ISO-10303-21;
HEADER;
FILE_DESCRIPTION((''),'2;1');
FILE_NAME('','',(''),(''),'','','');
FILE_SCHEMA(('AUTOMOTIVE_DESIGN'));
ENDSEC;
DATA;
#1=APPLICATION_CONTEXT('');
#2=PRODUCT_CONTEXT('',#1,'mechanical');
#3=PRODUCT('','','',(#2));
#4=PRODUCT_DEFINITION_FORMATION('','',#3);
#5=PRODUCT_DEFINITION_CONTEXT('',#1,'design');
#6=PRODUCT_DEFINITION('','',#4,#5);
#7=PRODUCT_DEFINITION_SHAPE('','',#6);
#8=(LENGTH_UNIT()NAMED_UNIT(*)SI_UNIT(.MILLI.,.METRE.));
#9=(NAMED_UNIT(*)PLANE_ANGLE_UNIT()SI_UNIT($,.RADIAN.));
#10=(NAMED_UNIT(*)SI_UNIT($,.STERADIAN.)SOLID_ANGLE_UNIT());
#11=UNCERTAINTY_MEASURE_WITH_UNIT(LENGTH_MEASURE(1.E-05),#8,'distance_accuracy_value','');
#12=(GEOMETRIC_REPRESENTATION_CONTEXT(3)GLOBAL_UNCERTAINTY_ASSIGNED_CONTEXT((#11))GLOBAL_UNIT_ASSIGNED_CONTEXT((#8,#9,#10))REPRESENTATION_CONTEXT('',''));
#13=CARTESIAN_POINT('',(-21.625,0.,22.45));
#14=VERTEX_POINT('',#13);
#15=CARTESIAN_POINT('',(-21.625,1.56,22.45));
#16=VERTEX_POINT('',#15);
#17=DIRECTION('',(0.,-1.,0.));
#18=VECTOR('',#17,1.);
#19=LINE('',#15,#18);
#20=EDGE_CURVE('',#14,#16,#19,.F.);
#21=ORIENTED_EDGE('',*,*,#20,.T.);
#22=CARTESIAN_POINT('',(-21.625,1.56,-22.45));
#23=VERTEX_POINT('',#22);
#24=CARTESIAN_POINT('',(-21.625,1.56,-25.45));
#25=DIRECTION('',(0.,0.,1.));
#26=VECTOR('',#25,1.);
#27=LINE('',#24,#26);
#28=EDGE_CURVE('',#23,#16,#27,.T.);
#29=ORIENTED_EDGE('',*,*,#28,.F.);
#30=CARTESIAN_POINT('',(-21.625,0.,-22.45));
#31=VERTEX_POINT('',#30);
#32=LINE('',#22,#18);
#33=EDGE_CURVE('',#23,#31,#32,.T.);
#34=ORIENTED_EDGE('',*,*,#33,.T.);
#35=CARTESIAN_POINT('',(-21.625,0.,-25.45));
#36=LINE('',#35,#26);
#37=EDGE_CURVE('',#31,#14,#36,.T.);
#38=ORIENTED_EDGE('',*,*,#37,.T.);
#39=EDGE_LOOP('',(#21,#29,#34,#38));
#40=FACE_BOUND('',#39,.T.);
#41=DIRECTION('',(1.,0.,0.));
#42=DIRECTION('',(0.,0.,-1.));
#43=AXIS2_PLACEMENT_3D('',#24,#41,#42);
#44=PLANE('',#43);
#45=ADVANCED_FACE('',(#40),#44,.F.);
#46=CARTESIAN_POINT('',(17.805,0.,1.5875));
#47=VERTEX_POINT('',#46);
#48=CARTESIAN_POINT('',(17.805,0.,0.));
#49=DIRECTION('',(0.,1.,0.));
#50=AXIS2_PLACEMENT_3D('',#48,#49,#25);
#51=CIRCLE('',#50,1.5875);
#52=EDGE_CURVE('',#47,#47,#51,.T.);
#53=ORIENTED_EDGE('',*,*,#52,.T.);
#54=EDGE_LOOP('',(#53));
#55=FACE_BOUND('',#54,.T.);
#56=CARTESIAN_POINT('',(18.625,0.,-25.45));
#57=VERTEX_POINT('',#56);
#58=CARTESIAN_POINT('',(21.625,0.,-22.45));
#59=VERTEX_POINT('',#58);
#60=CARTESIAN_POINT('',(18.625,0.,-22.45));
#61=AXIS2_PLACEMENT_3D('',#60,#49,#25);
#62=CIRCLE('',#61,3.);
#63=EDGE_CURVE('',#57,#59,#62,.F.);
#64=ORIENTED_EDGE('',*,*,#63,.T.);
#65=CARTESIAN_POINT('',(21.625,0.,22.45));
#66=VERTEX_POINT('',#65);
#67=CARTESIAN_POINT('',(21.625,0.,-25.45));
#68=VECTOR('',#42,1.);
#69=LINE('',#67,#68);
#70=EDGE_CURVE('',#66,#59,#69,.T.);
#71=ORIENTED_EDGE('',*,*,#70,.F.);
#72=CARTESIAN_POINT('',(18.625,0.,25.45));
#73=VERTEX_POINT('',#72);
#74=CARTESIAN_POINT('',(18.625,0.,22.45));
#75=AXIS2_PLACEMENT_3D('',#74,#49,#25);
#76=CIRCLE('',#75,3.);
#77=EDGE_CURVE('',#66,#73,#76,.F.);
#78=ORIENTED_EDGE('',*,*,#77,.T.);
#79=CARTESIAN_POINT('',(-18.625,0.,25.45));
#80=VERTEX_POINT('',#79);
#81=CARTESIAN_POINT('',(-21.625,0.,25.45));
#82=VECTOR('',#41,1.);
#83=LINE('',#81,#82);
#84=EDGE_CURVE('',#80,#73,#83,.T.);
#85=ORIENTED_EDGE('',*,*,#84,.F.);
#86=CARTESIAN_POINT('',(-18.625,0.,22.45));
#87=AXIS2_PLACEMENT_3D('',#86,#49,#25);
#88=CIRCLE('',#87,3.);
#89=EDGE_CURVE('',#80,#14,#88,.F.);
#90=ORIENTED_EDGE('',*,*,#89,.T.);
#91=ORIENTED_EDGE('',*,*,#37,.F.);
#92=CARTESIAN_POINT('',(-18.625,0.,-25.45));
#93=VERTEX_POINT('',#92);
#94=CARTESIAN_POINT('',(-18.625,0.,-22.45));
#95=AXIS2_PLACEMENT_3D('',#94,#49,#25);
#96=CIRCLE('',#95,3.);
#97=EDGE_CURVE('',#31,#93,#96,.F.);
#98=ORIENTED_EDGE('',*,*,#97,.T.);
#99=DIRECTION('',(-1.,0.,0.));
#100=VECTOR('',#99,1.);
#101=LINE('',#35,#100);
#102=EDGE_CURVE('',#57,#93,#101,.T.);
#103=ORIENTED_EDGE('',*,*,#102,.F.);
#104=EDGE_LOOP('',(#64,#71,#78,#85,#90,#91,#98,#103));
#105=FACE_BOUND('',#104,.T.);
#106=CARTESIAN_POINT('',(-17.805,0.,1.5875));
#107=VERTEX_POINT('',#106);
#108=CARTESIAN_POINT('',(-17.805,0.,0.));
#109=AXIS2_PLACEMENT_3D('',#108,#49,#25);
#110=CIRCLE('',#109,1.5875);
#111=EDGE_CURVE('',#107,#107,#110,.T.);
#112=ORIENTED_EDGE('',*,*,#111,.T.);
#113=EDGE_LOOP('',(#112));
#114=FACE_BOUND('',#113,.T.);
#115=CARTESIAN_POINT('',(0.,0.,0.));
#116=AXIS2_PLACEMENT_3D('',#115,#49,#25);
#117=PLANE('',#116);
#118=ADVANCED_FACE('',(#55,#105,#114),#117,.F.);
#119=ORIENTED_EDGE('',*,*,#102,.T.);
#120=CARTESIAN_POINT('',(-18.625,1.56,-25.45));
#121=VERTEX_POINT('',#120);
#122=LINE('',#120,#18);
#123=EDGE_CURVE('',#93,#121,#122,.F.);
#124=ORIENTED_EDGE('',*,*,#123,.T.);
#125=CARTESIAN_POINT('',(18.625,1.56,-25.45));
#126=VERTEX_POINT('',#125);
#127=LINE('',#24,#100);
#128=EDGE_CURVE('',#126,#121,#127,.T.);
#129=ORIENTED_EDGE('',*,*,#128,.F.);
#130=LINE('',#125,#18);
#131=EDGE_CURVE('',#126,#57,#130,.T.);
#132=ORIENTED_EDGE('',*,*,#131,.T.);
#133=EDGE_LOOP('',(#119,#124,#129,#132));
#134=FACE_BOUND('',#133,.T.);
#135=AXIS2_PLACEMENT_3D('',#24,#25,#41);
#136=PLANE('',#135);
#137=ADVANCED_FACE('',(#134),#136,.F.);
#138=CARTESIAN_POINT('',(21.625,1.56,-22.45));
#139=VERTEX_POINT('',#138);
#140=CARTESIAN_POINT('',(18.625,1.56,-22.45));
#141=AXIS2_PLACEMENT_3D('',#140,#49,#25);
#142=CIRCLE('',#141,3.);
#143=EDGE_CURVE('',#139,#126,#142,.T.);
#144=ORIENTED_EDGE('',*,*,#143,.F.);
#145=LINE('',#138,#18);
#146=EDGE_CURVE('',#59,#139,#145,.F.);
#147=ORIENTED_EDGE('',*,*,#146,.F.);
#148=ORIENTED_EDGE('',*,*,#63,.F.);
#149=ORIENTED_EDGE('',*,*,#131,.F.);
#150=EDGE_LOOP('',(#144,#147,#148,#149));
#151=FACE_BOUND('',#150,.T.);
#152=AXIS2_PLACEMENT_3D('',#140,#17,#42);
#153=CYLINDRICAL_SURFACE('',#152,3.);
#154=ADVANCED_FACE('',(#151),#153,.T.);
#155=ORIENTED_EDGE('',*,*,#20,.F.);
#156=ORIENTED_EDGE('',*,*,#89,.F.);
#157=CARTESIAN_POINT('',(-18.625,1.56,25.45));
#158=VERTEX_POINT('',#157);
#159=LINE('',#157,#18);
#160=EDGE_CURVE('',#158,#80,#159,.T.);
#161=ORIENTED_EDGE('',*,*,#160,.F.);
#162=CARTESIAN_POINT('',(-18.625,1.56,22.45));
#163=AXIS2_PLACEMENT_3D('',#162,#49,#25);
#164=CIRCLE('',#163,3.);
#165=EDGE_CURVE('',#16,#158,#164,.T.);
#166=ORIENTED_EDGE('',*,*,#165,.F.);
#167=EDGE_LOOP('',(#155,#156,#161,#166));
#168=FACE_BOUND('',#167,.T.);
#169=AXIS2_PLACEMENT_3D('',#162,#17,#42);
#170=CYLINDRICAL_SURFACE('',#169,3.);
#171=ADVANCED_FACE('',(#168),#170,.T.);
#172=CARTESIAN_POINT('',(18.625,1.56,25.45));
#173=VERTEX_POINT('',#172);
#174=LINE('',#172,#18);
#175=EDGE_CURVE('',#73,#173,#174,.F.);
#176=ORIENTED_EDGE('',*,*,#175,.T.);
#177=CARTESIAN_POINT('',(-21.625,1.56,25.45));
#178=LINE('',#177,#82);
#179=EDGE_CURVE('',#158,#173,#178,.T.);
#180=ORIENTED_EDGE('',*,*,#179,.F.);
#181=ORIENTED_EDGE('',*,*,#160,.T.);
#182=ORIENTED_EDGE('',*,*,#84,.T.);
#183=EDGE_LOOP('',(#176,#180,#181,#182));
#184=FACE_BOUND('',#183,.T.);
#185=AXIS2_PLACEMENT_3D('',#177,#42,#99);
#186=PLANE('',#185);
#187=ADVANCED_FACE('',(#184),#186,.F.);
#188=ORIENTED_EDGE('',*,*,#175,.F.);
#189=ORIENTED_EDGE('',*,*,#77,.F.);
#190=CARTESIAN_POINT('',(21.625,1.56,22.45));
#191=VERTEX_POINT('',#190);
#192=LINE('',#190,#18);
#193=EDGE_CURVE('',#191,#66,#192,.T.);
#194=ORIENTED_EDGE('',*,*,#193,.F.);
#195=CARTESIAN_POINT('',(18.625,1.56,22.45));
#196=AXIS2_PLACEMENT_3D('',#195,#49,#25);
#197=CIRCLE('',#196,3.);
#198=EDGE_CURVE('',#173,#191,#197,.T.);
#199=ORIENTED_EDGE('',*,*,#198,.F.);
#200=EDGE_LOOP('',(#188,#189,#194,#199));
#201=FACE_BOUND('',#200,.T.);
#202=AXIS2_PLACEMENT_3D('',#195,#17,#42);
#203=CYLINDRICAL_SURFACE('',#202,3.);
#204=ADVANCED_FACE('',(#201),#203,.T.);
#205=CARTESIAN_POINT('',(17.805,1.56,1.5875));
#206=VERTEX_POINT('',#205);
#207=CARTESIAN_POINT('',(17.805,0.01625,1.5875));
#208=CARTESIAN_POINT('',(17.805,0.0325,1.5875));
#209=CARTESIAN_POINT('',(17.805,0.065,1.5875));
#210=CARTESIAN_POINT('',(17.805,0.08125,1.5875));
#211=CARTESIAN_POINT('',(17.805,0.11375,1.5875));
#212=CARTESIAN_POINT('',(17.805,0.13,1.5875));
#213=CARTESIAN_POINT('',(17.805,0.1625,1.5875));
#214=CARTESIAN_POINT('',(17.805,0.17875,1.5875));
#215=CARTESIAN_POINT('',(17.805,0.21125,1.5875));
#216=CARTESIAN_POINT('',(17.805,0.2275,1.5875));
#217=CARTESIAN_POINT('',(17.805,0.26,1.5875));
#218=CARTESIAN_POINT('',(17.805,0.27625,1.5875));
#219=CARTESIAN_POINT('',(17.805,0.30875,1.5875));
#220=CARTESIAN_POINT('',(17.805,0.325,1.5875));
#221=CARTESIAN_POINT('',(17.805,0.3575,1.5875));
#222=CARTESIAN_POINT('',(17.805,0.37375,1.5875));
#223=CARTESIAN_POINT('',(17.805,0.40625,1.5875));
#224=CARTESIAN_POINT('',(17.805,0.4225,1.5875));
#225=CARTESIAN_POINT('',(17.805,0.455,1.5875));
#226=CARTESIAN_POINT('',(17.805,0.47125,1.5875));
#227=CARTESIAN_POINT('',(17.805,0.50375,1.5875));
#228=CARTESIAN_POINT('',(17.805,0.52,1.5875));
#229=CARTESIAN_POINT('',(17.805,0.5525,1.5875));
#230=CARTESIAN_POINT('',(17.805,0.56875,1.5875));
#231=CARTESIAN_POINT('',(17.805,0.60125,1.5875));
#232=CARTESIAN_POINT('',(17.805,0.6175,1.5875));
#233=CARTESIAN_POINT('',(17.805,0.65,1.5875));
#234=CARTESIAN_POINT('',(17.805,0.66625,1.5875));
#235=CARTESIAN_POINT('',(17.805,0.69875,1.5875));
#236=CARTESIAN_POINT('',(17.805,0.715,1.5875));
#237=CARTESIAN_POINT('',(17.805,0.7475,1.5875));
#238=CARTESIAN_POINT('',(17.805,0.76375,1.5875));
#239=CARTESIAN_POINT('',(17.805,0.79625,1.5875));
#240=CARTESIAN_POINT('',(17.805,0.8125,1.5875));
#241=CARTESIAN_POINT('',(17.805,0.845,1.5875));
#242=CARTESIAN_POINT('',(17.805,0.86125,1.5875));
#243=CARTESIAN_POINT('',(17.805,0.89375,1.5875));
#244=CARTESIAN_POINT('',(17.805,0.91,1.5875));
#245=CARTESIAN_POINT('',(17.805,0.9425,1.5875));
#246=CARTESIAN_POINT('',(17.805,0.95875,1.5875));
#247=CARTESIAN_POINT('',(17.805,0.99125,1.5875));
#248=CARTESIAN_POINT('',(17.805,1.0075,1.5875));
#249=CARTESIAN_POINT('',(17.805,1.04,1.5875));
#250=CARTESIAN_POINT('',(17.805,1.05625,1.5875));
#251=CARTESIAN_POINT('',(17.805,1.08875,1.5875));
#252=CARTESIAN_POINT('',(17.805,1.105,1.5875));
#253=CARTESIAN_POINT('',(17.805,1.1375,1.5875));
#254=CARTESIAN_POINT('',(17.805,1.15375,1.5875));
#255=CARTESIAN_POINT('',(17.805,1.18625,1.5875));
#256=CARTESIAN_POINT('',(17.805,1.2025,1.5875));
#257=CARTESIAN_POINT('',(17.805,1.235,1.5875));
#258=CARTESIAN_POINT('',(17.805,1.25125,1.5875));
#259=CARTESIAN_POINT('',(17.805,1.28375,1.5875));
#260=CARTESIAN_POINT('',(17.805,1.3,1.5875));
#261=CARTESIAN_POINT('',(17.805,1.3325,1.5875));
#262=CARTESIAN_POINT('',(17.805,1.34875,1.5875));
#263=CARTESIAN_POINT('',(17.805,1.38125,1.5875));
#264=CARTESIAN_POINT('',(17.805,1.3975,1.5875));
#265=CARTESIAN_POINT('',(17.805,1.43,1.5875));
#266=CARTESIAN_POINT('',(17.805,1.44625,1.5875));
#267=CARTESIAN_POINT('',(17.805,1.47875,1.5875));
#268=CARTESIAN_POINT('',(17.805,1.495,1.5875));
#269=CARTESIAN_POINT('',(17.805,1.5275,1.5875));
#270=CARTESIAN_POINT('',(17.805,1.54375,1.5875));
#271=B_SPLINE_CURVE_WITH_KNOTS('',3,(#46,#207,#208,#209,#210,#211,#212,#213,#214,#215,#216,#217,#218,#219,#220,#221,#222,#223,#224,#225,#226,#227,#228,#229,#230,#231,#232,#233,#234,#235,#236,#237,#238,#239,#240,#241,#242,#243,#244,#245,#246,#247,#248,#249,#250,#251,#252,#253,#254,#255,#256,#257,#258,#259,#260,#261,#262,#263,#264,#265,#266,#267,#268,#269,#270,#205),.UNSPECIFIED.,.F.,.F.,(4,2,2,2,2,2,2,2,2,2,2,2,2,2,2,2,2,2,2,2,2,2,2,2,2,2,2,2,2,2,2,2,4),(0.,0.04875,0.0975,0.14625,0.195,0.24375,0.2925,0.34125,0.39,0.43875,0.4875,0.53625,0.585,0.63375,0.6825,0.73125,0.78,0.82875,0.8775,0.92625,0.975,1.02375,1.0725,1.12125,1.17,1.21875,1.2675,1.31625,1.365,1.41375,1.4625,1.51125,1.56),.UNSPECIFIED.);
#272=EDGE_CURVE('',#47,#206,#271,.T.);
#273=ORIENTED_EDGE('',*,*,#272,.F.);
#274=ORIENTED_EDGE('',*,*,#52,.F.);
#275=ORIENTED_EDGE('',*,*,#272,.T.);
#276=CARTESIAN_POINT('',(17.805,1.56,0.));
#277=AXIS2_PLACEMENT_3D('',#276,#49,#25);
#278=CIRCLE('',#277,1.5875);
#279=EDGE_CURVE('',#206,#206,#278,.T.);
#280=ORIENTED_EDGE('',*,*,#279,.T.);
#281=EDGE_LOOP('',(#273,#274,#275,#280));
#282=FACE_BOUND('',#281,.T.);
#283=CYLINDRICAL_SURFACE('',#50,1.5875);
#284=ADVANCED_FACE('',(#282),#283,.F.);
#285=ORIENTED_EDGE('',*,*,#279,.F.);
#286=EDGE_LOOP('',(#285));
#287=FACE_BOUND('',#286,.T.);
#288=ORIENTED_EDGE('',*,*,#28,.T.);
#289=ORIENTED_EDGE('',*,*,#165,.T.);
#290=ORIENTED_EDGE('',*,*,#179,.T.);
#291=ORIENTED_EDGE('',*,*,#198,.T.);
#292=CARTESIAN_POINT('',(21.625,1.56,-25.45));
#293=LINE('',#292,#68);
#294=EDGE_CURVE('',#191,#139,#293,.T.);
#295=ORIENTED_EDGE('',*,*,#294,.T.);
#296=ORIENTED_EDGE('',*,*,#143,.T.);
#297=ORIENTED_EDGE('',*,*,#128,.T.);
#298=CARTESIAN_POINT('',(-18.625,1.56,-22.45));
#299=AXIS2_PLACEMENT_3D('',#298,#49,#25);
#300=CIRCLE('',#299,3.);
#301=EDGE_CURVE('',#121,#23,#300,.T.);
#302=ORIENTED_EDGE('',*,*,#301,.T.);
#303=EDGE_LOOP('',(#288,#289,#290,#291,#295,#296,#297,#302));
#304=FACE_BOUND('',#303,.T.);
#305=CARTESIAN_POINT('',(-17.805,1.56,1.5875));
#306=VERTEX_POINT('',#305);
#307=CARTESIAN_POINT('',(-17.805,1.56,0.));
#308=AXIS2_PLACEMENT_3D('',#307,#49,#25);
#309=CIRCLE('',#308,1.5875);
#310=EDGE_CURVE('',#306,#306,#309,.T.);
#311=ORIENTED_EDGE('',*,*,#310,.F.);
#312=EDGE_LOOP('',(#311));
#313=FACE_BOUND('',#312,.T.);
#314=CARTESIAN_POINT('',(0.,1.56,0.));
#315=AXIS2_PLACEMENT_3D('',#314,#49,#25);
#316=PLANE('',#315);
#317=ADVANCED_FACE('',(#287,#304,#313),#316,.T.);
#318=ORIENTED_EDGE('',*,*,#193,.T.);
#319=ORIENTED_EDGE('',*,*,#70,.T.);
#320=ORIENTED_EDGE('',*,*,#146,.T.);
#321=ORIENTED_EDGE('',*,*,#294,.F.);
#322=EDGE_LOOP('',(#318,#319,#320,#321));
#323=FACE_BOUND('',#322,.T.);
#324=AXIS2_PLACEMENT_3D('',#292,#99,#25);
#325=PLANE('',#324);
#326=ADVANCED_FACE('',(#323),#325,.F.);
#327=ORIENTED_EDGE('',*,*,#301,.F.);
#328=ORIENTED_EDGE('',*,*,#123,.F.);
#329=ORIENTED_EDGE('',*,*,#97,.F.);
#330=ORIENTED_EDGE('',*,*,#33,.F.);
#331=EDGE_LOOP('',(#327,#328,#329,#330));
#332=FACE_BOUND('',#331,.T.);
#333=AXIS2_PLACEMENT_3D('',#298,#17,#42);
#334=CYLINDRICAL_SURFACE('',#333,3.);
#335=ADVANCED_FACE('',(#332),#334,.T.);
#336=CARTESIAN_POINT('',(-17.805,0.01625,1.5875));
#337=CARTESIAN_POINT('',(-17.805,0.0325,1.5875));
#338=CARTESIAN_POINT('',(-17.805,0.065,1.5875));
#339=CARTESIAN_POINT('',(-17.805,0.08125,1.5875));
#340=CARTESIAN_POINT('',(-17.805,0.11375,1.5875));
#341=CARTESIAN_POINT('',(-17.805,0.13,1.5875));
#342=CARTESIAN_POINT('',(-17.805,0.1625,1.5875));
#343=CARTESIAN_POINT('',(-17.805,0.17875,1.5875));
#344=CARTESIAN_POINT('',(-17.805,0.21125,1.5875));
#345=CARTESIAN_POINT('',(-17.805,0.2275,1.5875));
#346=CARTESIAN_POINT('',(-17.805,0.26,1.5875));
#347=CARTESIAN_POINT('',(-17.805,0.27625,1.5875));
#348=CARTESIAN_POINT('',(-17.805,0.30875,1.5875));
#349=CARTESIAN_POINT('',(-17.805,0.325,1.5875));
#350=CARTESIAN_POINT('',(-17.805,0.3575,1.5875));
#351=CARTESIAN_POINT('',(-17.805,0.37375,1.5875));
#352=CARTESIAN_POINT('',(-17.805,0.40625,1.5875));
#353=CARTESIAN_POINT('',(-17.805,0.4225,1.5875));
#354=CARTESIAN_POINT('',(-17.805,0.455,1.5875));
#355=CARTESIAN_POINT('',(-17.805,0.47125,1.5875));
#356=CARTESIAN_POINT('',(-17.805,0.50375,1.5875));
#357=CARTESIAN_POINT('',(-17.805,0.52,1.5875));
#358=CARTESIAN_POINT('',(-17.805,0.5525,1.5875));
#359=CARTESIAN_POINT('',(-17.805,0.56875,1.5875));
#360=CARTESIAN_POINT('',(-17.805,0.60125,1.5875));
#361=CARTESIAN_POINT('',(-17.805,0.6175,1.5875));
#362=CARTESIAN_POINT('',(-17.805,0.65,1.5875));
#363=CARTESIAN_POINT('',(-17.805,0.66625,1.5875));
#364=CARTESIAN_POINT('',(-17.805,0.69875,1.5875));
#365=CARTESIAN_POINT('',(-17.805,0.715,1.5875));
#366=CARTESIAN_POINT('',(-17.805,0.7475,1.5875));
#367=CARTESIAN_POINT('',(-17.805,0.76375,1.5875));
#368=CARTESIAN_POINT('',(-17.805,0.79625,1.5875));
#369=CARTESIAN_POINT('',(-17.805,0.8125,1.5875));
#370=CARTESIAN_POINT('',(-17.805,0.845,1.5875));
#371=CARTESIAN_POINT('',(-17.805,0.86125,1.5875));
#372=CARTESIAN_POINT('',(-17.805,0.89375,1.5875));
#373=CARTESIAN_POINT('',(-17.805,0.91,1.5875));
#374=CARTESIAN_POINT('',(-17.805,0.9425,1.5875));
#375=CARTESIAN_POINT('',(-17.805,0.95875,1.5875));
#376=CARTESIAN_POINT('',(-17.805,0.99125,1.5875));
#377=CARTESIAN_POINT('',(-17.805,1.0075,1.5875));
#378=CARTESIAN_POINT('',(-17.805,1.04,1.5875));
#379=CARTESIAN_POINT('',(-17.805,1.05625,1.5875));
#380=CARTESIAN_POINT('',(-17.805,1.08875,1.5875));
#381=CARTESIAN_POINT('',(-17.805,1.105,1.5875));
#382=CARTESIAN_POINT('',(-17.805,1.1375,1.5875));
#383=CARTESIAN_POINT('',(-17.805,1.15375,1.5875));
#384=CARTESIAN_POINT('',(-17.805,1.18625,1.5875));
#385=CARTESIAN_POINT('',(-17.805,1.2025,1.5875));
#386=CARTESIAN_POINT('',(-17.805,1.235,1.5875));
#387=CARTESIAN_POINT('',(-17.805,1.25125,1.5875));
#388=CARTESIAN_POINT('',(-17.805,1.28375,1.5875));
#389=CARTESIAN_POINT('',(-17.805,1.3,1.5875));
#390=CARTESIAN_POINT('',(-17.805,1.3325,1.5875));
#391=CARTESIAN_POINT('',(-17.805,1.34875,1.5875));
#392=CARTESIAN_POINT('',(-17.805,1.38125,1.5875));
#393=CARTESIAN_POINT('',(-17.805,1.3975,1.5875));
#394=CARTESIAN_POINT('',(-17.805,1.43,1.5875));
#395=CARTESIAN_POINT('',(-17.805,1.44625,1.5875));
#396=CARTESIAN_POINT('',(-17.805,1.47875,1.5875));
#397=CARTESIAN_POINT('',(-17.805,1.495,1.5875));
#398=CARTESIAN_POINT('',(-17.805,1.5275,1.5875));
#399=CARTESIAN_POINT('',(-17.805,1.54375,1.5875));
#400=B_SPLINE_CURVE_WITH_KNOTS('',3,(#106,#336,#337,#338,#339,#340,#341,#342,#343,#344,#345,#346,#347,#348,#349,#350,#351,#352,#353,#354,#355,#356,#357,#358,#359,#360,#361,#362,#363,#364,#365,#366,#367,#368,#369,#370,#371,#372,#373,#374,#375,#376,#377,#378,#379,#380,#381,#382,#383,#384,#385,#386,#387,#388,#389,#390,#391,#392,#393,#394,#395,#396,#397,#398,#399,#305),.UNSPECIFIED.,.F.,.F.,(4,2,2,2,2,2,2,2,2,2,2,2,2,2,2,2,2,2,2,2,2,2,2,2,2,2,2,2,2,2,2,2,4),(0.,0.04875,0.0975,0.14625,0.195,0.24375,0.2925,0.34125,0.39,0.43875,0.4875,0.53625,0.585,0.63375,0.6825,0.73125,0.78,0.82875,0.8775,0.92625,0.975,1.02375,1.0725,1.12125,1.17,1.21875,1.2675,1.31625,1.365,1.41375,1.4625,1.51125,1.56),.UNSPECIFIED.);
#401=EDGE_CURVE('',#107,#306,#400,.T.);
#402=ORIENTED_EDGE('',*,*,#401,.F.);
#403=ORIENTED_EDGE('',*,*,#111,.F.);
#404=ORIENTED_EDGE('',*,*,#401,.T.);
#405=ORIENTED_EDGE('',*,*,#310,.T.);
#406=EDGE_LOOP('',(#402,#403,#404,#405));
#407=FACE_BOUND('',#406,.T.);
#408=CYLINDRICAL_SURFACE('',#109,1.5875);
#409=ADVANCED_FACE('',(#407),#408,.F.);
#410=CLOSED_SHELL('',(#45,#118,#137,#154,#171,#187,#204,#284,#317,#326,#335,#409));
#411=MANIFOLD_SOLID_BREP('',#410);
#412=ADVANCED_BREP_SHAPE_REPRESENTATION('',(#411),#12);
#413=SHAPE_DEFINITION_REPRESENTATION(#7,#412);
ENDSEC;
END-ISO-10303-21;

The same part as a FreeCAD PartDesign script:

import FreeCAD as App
import Part
import Sketcher

V = App.Vector


def edges_at(feature, points):
    """Names of the edges that pass closest to the given points."""
    edges = feature.Shape.Edges
    near = lambda p: min(range(len(edges)), key=lambda i: edges[i].distToShape(Part.Vertex(*p))[0])
    return sorted({f"Edge{near(p) + 1}" for p in points})

doc = App.newDocument("Part")
body = doc.addObject("PartDesign::Body", "Body")

sketch1 = body.newObject("Sketcher::SketchObject", "Sketch")
sketch1.AttachmentSupport = (doc.getObject("XZ_Plane"), [""])
sketch1.MapMode = "FlatFace"
sketch1.addGeometry([
    Part.LineSegment(V(-21.625, -25.45, 0), V(-21.625, 25.45, 0)),
    Part.LineSegment(V(-21.625, 25.45, 0), V(21.625, 25.45, 0)),
    Part.LineSegment(V(21.625, 25.45, 0), V(21.625, -25.45, 0)),
    Part.LineSegment(V(21.625, -25.45, 0), V(-21.625, -25.45, 0)),
], False)
sketch1.addConstraint([
    Sketcher.Constraint("Coincident", 0, 2, 1, 1),
    Sketcher.Constraint("Coincident", 1, 2, 2, 1),
    Sketcher.Constraint("Coincident", 2, 2, 3, 1),
    Sketcher.Constraint("Coincident", 3, 2, 0, 1),
    Sketcher.Constraint("Vertical", 0),
    Sketcher.Constraint("Horizontal", 1),
    Sketcher.Constraint("Vertical", 2),
    Sketcher.Constraint("Horizontal", 3),
    Sketcher.Constraint("Symmetric", 0, 2, 2, 2, -1, 1),
    Sketcher.Constraint("DistanceY", 0, 1, 0, 2, 50.9),
    Sketcher.Constraint("DistanceX", 1, 1, 1, 2, 43.25),
])
pad1 = body.newObject("PartDesign::Pad", "Pad")
pad1.Profile = sketch1
pad1.Length = 1.56
pad1.Reversed = True
doc.recompute()

fillet = body.newObject("PartDesign::Fillet", "Fillet")
fillet.Base = (pad1, edges_at(pad1, [(21.625, 0.78, 25.45)]))
fillet.Radius = 3
doc.recompute()

fillet2 = body.newObject("PartDesign::Fillet", "Fillet001")
fillet2.Base = (fillet, edges_at(fillet, [(-21.625, 0.78, -25.45), (21.625, 0.78, -25.45), (-21.625, 0.78, 25.45)]))
fillet2.Radius = 3

sketch2 = body.newObject("Sketcher::SketchObject", "Sketch001")
sketch2.AttachmentSupport = (doc.getObject("XZ_Plane"), [""])
sketch2.MapMode = "FlatFace"
sketch2.AttachmentOffset = App.Placement(V(0, 0, -1.56), App.Rotation())
sketch2.addGeometry([
    Part.Circle(V(-17.805, 0, 0), V(0, 0, 1), 1.5875),
    Part.Circle(V(17.805, 0, 0), V(0, 0, 1), 1.5875),
], False)
sketch2.addConstraint([
    Sketcher.Constraint("Equal", 0, 1),
    Sketcher.Constraint("Symmetric", 0, 3, 1, 3, -1, 1),
    Sketcher.Constraint("PointOnObject", 0, 3, -1),
    Sketcher.Constraint("Diameter", 0, 3.175),
    Sketcher.Constraint("DistanceX", 0, 3, 1, 3, 35.61),
])
pocket1 = body.newObject("PartDesign::Pocket", "Pocket")
pocket1.Profile = sketch2
pocket1.Length = 1.56
pocket1.Reversed = True

doc.recompute()
